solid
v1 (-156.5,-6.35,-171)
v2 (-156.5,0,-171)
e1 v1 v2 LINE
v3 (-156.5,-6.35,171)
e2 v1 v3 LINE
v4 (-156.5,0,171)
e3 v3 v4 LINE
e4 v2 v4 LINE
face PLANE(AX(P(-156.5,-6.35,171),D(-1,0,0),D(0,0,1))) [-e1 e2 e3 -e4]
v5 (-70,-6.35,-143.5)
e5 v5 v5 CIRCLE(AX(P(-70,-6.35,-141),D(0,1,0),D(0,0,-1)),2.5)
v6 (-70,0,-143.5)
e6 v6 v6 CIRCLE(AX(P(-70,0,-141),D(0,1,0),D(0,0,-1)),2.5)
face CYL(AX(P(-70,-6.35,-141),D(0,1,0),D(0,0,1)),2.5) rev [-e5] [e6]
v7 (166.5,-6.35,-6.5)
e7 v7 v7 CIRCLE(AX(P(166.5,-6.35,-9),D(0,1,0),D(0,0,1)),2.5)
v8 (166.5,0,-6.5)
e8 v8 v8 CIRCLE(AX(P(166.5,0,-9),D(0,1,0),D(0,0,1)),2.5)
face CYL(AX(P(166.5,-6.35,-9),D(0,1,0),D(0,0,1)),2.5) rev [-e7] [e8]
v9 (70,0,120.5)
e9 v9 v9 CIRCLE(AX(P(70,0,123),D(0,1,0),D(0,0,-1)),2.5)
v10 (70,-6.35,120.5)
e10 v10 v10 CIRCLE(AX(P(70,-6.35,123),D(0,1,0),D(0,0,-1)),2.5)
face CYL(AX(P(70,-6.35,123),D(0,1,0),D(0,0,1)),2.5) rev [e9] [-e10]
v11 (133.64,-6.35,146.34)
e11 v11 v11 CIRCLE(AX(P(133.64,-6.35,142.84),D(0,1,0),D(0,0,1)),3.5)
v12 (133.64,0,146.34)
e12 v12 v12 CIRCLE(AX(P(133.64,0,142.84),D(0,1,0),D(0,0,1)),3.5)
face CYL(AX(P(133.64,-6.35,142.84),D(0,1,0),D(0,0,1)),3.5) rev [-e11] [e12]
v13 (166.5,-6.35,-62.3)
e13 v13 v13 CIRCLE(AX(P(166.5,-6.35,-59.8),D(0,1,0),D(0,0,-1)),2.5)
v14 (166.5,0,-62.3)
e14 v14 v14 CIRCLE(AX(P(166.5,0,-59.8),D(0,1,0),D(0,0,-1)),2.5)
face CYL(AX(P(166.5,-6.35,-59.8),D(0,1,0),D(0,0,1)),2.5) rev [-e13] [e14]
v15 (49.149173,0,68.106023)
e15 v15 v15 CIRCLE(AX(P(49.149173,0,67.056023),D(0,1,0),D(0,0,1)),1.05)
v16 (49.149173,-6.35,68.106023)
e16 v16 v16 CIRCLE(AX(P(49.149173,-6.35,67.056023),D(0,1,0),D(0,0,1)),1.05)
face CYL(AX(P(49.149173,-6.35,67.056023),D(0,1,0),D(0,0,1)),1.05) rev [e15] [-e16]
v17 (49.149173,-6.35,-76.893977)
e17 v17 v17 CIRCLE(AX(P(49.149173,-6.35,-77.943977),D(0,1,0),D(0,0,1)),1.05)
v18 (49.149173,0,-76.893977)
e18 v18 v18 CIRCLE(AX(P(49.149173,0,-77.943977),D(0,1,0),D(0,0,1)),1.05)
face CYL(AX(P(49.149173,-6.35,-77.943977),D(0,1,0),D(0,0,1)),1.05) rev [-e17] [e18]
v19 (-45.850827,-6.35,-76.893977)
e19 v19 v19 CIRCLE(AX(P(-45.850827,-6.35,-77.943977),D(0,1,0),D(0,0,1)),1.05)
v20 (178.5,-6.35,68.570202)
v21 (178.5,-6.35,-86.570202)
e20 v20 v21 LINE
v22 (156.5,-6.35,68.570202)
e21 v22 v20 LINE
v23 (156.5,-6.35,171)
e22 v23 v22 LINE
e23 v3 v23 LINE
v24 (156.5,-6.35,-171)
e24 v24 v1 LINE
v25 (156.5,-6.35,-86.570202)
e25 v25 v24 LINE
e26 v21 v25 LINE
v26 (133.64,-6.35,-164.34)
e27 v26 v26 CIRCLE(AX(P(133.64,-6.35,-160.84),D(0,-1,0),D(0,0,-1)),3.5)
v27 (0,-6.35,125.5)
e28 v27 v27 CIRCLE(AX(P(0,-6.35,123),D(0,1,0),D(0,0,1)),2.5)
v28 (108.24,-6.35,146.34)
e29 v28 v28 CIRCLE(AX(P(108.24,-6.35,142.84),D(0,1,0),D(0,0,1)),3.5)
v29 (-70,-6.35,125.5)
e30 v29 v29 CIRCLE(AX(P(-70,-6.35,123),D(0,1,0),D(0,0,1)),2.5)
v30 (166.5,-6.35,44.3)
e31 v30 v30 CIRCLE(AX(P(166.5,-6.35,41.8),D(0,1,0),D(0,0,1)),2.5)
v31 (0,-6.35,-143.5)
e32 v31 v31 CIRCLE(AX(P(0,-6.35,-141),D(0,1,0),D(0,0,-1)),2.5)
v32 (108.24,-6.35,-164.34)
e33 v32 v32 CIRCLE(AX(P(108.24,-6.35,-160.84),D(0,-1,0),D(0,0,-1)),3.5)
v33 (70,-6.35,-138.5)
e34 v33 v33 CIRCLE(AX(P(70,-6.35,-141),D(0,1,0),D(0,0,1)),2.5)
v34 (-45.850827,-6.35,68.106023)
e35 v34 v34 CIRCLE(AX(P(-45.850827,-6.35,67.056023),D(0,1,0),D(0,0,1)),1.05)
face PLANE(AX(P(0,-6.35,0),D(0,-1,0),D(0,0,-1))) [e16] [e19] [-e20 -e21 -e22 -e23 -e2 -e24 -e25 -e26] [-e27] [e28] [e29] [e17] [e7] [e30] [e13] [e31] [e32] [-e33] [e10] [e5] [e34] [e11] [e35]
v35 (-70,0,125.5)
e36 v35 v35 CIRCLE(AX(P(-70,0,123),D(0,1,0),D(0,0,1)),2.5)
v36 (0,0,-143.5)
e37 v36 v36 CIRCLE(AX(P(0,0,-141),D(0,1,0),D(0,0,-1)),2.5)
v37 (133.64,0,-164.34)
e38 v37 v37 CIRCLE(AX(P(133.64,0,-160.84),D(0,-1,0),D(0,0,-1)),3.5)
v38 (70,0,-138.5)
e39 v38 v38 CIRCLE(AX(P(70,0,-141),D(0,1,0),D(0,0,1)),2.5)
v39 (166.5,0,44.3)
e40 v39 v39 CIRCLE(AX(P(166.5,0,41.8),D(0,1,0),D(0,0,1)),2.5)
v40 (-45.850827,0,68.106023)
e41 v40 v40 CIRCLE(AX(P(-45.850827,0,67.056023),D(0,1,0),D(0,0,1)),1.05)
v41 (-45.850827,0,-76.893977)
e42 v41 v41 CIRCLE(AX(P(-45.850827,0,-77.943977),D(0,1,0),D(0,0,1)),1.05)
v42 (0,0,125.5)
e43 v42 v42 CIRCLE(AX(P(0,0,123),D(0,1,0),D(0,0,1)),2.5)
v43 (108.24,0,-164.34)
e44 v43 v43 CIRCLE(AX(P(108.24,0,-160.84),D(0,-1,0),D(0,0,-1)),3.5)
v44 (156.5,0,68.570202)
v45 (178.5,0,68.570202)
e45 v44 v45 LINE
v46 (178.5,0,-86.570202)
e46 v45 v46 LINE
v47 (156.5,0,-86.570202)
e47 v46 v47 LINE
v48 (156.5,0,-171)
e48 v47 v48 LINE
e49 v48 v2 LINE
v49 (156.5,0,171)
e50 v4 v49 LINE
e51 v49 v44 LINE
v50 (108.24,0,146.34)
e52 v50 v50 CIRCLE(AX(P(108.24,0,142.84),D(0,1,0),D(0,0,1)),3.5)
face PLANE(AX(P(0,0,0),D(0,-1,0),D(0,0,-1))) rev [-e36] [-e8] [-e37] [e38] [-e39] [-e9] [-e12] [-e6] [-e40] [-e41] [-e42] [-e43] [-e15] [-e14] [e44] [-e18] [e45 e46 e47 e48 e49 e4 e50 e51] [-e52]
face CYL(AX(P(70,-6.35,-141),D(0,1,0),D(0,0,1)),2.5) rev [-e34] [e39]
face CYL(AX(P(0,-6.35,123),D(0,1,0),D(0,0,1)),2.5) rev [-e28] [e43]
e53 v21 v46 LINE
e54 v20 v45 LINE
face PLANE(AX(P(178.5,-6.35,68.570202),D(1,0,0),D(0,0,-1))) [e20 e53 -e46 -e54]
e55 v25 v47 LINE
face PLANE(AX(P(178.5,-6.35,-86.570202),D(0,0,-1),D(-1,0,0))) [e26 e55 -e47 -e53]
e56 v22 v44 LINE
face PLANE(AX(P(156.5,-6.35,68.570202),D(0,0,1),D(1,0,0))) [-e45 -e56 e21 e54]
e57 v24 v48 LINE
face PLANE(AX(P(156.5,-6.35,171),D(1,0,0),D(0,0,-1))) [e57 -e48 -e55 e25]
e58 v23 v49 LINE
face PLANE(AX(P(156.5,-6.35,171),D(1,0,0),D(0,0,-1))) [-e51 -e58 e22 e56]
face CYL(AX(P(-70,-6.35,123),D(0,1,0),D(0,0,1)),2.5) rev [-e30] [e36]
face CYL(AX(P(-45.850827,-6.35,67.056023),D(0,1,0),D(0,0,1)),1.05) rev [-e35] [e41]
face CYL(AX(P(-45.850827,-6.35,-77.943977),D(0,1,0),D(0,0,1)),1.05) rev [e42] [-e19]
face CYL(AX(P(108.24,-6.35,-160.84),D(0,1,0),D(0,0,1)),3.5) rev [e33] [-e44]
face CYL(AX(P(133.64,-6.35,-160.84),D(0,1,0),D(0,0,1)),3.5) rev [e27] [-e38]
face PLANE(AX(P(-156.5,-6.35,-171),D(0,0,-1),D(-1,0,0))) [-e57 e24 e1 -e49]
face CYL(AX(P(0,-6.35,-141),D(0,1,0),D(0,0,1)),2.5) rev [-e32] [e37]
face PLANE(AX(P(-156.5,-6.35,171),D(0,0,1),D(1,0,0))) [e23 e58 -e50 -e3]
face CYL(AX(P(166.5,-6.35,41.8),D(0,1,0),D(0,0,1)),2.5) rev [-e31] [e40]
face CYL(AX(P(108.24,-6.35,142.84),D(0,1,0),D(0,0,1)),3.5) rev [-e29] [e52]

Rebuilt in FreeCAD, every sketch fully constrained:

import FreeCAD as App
import Part
import Sketcher
from FreeCAD import Vector

doc = App.newDocument("Part")
params = doc.addObject("Spreadsheet::Sheet", "Params")
for row, (alias, value) in enumerate([
    ("sketch1_width", "313 mm"),
    ("sketch1_height", "342 mm"),
    ("pad1_length", "6.35 mm"),
    ("sketch2_diameter", "5 mm"),
    ("sketch2_width", "22 mm"),
    ("pad2_length", "6.35 mm"),
    ("sketch3_diameter", "5 mm"),
    ("sketch4_diameter", "7 mm"),
    ("sketch5_diameter", "2.1 mm"),
], start=1):
    params.set(f"A{row}", alias)
    params.set(f"B{row}", "=" + value)
    params.setAlias(f"B{row}", alias)

body = doc.addObject("PartDesign::Body", "Body")

# Sketch on XZ plane
sketch1 = body.newObject("Sketcher::SketchObject", "Sketch")
sketch1.AttachmentSupport = (doc.getObject("XZ_Plane"), [""])
sketch1.MapMode = "FlatFace"
sketch1.addGeometry(Part.LineSegment(Vector(-156, -171, 0), Vector(-156, 171, 0)), False)
sketch1.addGeometry(Part.LineSegment(Vector(-156, 171, 0), Vector(156, 171, 0)), False)
sketch1.addGeometry(Part.LineSegment(Vector(156, 171, 0), Vector(156, -171, 0)), False)
sketch1.addGeometry(Part.LineSegment(Vector(156, -171, 0), Vector(-156, -171, 0)), False)
sketch1.addConstraint(Sketcher.Constraint("Coincident", 0, 2, 1, 1))
sketch1.addConstraint(Sketcher.Constraint("Coincident", 1, 2, 2, 1))
sketch1.addConstraint(Sketcher.Constraint("Coincident", 2, 2, 3, 1))
sketch1.addConstraint(Sketcher.Constraint("Coincident", 3, 2, 0, 1))
sketch1.addConstraint(Sketcher.Constraint("Vertical", 0))
sketch1.addConstraint(Sketcher.Constraint("Horizontal", 1))
sketch1.addConstraint(Sketcher.Constraint("Vertical", 2))
sketch1.addConstraint(Sketcher.Constraint("Horizontal", 3))
sketch1.addConstraint(Sketcher.Constraint("Symmetric", 0, 2, 2, 2, -1, 1))
sketch1.addConstraint(Sketcher.Constraint("DistanceX", 1, 1, 1, 2, 313.0))
sketch1.addConstraint(Sketcher.Constraint("DistanceY", 0, 1, 0, 2, 342.0))
sketch1.setExpression("Constraints[9]", "Params.sketch1_width")
sketch1.setExpression("Constraints[10]", "Params.sketch1_height")
pad1 = body.newObject("PartDesign::Pad", "Pad")
pad1.Profile = sketch1
pad1.setExpression("Length", "Params.pad1_length")

# Sketch on XZ plane
sketch2 = body.newObject("Sketcher::SketchObject", "Sketch001")
sketch2.AttachmentSupport = (doc.getObject("XZ_Plane"), [""])
sketch2.MapMode = "FlatFace"
sketch2.addGeometry(Part.LineSegment(Vector(156.5, -86.6, 0), Vector(156.5, 68.6, 0)), False)
sketch2.addGeometry(Part.LineSegment(Vector(156.5, 68.6, 0), Vector(178.5, 68.6, 0)), False)
sketch2.addGeometry(Part.LineSegment(Vector(178.5, 68.6, 0), Vector(178.5, -86.6, 0)), False)
sketch2.addGeometry(Part.LineSegment(Vector(178.5, -86.6, 0), Vector(156.5, -86.6, 0)), False)
sketch2.addGeometry(Part.Circle(Vector(166.5, 41.8, 0), Vector(0, 0, 1), 2.5), False)
sketch2.addGeometry(Part.Circle(Vector(166.5, -9, 0), Vector(0, 0, 1), 2.5), False)
sketch2.addGeometry(Part.Circle(Vector(166.5, -59.8, 0), Vector(0, 0, 1), 2.5), False)
sketch2.addConstraint(Sketcher.Constraint("Coincident", 0, 2, 1, 1))
sketch2.addConstraint(Sketcher.Constraint("Coincident", 1, 2, 2, 1))
sketch2.addConstraint(Sketcher.Constraint("Coincident", 2, 2, 3, 1))
sketch2.addConstraint(Sketcher.Constraint("Coincident", 3, 2, 0, 1))
sketch2.addConstraint(Sketcher.Constraint("Vertical", 0))
sketch2.addConstraint(Sketcher.Constraint("Horizontal", 1))
sketch2.addConstraint(Sketcher.Constraint("Vertical", 2))
sketch2.addConstraint(Sketcher.Constraint("Horizontal", 3))
sketch2.addConstraint(Sketcher.Constraint("Equal", 4, 5))
sketch2.addConstraint(Sketcher.Constraint("Equal", 5, 6))
sketch2.addConstraint(Sketcher.Constraint("Vertical", 4, 3, 5, 3))
sketch2.addConstraint(Sketcher.Constraint("Vertical", 5, 3, 6, 3))
sketch2.addConstraint(Sketcher.Constraint("Diameter", 4, 5.0))
sketch2.addConstraint(Sketcher.Constraint("DistanceX", 1, 1, 1, 2, 22.0))
sketch2.addConstraint(Sketcher.Constraint("DistanceY", 5, 3, -1, 1, 9.0))
sketch2.addConstraint(Sketcher.Constraint("DistanceX", 0, 2, 4, 3, 10.0))
sketch2.addConstraint(Sketcher.Constraint("DistanceX", -1, 1, 4, 3, 166.5))
sketch2.addConstraint(Sketcher.Constraint("DistanceY", -1, 1, 4, 3, 41.8))
sketch2.addConstraint(Sketcher.Constraint("DistanceY", 6, 3, -1, 1, 59.8))
sketch2.addConstraint(Sketcher.Constraint("DistanceY", -1, 1, 0, 2, 68.570202))
sketch2.addConstraint(Sketcher.Constraint("DistanceY", 2, 2, -1, 1, 86.570202))
sketch2.setExpression("Constraints[12]", "Params.sketch2_diameter")
sketch2.setExpression("Constraints[13]", "Params.sketch2_width")
pad2 = body.newObject("PartDesign::Pad", "Pad001")
pad2.Profile = sketch2
pad2.setExpression("Length", "Params.pad2_length")

# Sketch on XZ plane
sketch3 = body.newObject("Sketcher::SketchObject", "Sketch002")
sketch3.AttachmentSupport = (doc.getObject("XZ_Plane"), [""])
sketch3.MapMode = "FlatFace"
sketch3.addGeometry(Part.Circle(Vector(0, 123, 0), Vector(0, 0, 1), 2.5), False)
sketch3.addGeometry(Part.Circle(Vector(-70, 123, 0), Vector(0, 0, 1), 2.5), False)
sketch3.addGeometry(Part.Circle(Vector(70, 123, 0), Vector(0, 0, 1), 2.5), False)
sketch3.addGeometry(Part.Circle(Vector(-70, -141, 0), Vector(0, 0, 1), 2.5), False)
sketch3.addGeometry(Part.Circle(Vector(0, -141, 0), Vector(0, 0, 1), 2.5), False)
sketch3.addGeometry(Part.Circle(Vector(70, -141, 0), Vector(0, 0, 1), 2.5), False)
sketch3.addConstraint(Sketcher.Constraint("Equal", 0, 1))
sketch3.addConstraint(Sketcher.Constraint("Equal", 1, 2))
sketch3.addConstraint(Sketcher.Constraint("Equal", 2, 3))
sketch3.addConstraint(Sketcher.Constraint("Equal", 3, 4))
sketch3.addConstraint(Sketcher.Constraint("Equal", 4, 5))
sketch3.addConstraint(Sketcher.Constraint("Symmetric", 1, 3, 2, 3, -2))
sketch3.addConstraint(Sketcher.Constraint("Symmetric", 3, 3, 5, 3, -2))
sketch3.addConstraint(Sketcher.Constraint("PointOnObject", 0, 3, -2))
sketch3.addConstraint(Sketcher.Constraint("PointOnObject", 4, 3, -2))
sketch3.addConstraint(Sketcher.Constraint("Horizontal", 0, 3, 1, 3))
sketch3.addConstraint(Sketcher.Constraint("Horizontal", 3, 3, 4, 3))
sketch3.addConstraint(Sketcher.Constraint("Vertical", 1, 3, 3, 3))
sketch3.addConstraint(Sketcher.Constraint("Diameter", 0, 5.0))
sketch3.addConstraint(Sketcher.Constraint("DistanceY", -1, 1, 0, 3, 123.0))
sketch3.addConstraint(Sketcher.Constraint("DistanceX", 1, 3, -1, 1, 70.0))
sketch3.addConstraint(Sketcher.Constraint("DistanceY", 3, 3, -1, 1, 141.0))
sketch3.setExpression("Constraints[12]", "Params.sketch3_diameter")
pocket1 = body.newObject("PartDesign::Pocket", "Pocket")
pocket1.Profile = sketch3
pocket1.Type = "ThroughAll"
pocket1.Reversed = True

# Sketch on XZ plane
sketch4 = body.newObject("Sketcher::SketchObject", "Sketch003")
sketch4.AttachmentSupport = (doc.getObject("XZ_Plane"), [""])
sketch4.MapMode = "FlatFace"
sketch4.addGeometry(Part.Circle(Vector(133.6, 142.8, 0), Vector(0, 0, 1), 3.5), False)
sketch4.addGeometry(Part.Circle(Vector(108.2, 142.8, 0), Vector(0, 0, 1), 3.5), False)
sketch4.addConstraint(Sketcher.Constraint("Equal", 0, 1))
sketch4.addConstraint(Sketcher.Constraint("Horizontal", 0, 3, 1, 3))
sketch4.addConstraint(Sketcher.Constraint("Diameter", 0, 7.0))
sketch4.addConstraint(Sketcher.Constraint("DistanceX", 1, 3, 0, 3, 25.4))
sketch4.addConstraint(Sketcher.Constraint("DistanceX", -1, 1, 0, 3, 133.64))
sketch4.addConstraint(Sketcher.Constraint("DistanceY", -1, 1, 0, 3, 142.84))
sketch4.setExpression("Constraints[2]", "Params.sketch4_diameter")
pocket2 = body.newObject("PartDesign::Pocket", "Pocket001")
pocket2.Profile = sketch4
pocket2.Type = "ThroughAll"
pocket2.Reversed = True
doc.recompute()

datumplane = body.newObject("PartDesign::Plane", "DatumPlane")
datumplane.AttachmentSupport = (doc.getObject("XY_Plane"), [""])
datumplane.MapMode = "FlatFace"
datumplane.AttachmentOffset = App.Placement(Vector(0, 0, -9), App.Rotation())
mirrored = body.newObject("PartDesign::Mirrored", "Mirrored")
mirrored.Originals = [pocket2]
mirrored.MirrorPlane = (datumplane, [""])
body.Tip = mirrored

# Sketch on XZ plane
sketch5 = body.newObject("Sketcher::SketchObject", "Sketch004")
sketch5.AttachmentSupport = (doc.getObject("XZ_Plane"), [""])
sketch5.MapMode = "FlatFace"
sketch5.addGeometry(Part.Circle(Vector(49.1, -77.9, 0), Vector(0, 0, 1), 1.1), False)
sketch5.addGeometry(Part.Circle(Vector(49.1, 67.1, 0), Vector(0, 0, 1), 1.1), False)
sketch5.addGeometry(Part.Circle(Vector(-45.9, -77.9, 0), Vector(0, 0, 1), 1.1), False)
sketch5.addGeometry(Part.Circle(Vector(-45.9, 67.1, 0), Vector(0, 0, 1), 1.1), False)
sketch5.addConstraint(Sketcher.Constraint("Equal", 0, 1))
sketch5.addConstraint(Sketcher.Constraint("Equal", 1, 2))
sketch5.addConstraint(Sketcher.Constraint("Equal", 2, 3))
sketch5.addConstraint(Sketcher.Constraint("Horizontal", 0, 3, 2, 3))
sketch5.addConstraint(Sketcher.Constraint("Horizontal", 1, 3, 3, 3))
sketch5.addConstraint(Sketcher.Constraint("Vertical", 0, 3, 1, 3))
sketch5.addConstraint(Sketcher.Constraint("Vertical", 2, 3, 3, 3))
sketch5.addConstraint(Sketcher.Constraint("Diameter", 0, 2.1))
sketch5.addConstraint(Sketcher.Constraint("DistanceY", 0, 3, 1, 3, 145.0))
sketch5.addConstraint(Sketcher.Constraint("DistanceX", 2, 3, 0, 3, 95.0))
sketch5.addConstraint(Sketcher.Constraint("DistanceX", -1, 1, 0, 3, 49.149173))
sketch5.addConstraint(Sketcher.Constraint("DistanceY", 0, 3, -1, 1, 77.943977))
sketch5.setExpression("Constraints[7]", "Params.sketch5_diameter")
pocket3 = body.newObject("PartDesign::Pocket", "Pocket002")
pocket3.Profile = sketch5
pocket3.Type = "ThroughAll"
pocket3.Reversed = True

doc.recompute()
